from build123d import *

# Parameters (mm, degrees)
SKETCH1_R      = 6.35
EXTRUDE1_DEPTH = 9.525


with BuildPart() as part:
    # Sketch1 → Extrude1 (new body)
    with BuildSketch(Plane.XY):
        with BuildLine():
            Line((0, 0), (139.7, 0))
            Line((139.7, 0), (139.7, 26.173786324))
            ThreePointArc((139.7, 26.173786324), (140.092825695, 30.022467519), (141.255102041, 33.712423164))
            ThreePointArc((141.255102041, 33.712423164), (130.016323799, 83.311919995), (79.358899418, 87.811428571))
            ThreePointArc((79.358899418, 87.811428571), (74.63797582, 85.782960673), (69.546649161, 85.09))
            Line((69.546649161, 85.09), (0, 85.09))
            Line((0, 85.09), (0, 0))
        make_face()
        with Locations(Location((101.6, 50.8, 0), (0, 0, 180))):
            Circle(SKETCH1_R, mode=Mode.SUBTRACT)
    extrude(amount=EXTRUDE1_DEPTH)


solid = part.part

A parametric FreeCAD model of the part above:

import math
import FreeCAD as App
import Part
import Sketcher
from FreeCAD import Vector
Q = App.Units.Quantity

doc = App.newDocument("Part")
body = doc.addObject("PartDesign::Body", "Body")

sketch1 = body.newObject("Sketcher::SketchObject", "Sketch")
sketch1.AttachmentSupport = (doc.getObject("XY_Plane"), [""])
sketch1.MapMode = "FlatFace"
sketch1.addGeometry([
    Part.LineSegment(Vector(0, 0, 0), Vector(140, 0, 0)),
    Part.LineSegment(Vector(140, 0, 0), Vector(140, 26, 0)),
    Part.ArcOfCircle(Part.Circle(Vector(159, 26, 0), Vector(0, 0, 1), 19), math.radians(157), math.radians(180)),
    Part.ArcOfCircle(Part.Circle(Vector(102, 51, 0), Vector(0, 0, 1), 43), math.radians(-23), math.radians(121)),
    Part.ArcOfCircle(Part.Circle(Vector(70, 104, 0), Vector(0, 0, 1), 19), math.radians(-90), math.radians(-59)),
    Part.LineSegment(Vector(70, 85, 0), Vector(0, 85, 0)),
    Part.LineSegment(Vector(0, 85, 0), Vector(0, 0, 0)),
    Part.Circle(Vector(102, 51, 0), Vector(0, 0, 1), 6),
], False)
sketch1.addConstraint([
    Sketcher.Constraint("Coincident", 0, 2, 1, 1),
    Sketcher.Constraint("Tangent", 1, 2, 2, 2),
    Sketcher.Constraint("Tangent", 2, 1, 3, 1),
    Sketcher.Constraint("Tangent", 3, 2, 4, 2),
    Sketcher.Constraint("Tangent", 4, 1, 5, 1),
    Sketcher.Constraint("Coincident", 5, 2, 6, 1),
    Sketcher.Constraint("Coincident", 6, 2, 0, 1),
    Sketcher.Constraint("Horizontal", 0),
    Sketcher.Constraint("Vertical", 1),
    Sketcher.Constraint("Horizontal", 5),
    Sketcher.Constraint("Vertical", 6),
    Sketcher.Constraint("Coincident", 6, 2, -1, 1),
    Sketcher.Constraint("Coincident", 7, 3, 3, 3),
    Sketcher.Constraint("Equal", 2, 4),
    Sketcher.Constraint("Diameter", 7, Q("0.5 in")),
    Sketcher.Constraint("Radius", 3, Q("1.7 in")),
    Sketcher.Constraint("Radius", 2, Q("0.75 in")),
    Sketcher.Constraint("DistanceX", 0, 1, 0, 2, Q("5.5 in")),
    Sketcher.Constraint("DistanceX", -1, 1, 3, 3, Q("4 in")),
    Sketcher.Constraint("DistanceY", -1, 1, 3, 3, Q("2 in")),
    Sketcher.Constraint("DistanceY", 6, 2, 6, 1, Q("3.35 in")),
])
pad1 = body.newObject("PartDesign::Pad", "Pad")
pad1.Profile = sketch1
pad1.Length = Q("0.375 in")

doc.recompute()
